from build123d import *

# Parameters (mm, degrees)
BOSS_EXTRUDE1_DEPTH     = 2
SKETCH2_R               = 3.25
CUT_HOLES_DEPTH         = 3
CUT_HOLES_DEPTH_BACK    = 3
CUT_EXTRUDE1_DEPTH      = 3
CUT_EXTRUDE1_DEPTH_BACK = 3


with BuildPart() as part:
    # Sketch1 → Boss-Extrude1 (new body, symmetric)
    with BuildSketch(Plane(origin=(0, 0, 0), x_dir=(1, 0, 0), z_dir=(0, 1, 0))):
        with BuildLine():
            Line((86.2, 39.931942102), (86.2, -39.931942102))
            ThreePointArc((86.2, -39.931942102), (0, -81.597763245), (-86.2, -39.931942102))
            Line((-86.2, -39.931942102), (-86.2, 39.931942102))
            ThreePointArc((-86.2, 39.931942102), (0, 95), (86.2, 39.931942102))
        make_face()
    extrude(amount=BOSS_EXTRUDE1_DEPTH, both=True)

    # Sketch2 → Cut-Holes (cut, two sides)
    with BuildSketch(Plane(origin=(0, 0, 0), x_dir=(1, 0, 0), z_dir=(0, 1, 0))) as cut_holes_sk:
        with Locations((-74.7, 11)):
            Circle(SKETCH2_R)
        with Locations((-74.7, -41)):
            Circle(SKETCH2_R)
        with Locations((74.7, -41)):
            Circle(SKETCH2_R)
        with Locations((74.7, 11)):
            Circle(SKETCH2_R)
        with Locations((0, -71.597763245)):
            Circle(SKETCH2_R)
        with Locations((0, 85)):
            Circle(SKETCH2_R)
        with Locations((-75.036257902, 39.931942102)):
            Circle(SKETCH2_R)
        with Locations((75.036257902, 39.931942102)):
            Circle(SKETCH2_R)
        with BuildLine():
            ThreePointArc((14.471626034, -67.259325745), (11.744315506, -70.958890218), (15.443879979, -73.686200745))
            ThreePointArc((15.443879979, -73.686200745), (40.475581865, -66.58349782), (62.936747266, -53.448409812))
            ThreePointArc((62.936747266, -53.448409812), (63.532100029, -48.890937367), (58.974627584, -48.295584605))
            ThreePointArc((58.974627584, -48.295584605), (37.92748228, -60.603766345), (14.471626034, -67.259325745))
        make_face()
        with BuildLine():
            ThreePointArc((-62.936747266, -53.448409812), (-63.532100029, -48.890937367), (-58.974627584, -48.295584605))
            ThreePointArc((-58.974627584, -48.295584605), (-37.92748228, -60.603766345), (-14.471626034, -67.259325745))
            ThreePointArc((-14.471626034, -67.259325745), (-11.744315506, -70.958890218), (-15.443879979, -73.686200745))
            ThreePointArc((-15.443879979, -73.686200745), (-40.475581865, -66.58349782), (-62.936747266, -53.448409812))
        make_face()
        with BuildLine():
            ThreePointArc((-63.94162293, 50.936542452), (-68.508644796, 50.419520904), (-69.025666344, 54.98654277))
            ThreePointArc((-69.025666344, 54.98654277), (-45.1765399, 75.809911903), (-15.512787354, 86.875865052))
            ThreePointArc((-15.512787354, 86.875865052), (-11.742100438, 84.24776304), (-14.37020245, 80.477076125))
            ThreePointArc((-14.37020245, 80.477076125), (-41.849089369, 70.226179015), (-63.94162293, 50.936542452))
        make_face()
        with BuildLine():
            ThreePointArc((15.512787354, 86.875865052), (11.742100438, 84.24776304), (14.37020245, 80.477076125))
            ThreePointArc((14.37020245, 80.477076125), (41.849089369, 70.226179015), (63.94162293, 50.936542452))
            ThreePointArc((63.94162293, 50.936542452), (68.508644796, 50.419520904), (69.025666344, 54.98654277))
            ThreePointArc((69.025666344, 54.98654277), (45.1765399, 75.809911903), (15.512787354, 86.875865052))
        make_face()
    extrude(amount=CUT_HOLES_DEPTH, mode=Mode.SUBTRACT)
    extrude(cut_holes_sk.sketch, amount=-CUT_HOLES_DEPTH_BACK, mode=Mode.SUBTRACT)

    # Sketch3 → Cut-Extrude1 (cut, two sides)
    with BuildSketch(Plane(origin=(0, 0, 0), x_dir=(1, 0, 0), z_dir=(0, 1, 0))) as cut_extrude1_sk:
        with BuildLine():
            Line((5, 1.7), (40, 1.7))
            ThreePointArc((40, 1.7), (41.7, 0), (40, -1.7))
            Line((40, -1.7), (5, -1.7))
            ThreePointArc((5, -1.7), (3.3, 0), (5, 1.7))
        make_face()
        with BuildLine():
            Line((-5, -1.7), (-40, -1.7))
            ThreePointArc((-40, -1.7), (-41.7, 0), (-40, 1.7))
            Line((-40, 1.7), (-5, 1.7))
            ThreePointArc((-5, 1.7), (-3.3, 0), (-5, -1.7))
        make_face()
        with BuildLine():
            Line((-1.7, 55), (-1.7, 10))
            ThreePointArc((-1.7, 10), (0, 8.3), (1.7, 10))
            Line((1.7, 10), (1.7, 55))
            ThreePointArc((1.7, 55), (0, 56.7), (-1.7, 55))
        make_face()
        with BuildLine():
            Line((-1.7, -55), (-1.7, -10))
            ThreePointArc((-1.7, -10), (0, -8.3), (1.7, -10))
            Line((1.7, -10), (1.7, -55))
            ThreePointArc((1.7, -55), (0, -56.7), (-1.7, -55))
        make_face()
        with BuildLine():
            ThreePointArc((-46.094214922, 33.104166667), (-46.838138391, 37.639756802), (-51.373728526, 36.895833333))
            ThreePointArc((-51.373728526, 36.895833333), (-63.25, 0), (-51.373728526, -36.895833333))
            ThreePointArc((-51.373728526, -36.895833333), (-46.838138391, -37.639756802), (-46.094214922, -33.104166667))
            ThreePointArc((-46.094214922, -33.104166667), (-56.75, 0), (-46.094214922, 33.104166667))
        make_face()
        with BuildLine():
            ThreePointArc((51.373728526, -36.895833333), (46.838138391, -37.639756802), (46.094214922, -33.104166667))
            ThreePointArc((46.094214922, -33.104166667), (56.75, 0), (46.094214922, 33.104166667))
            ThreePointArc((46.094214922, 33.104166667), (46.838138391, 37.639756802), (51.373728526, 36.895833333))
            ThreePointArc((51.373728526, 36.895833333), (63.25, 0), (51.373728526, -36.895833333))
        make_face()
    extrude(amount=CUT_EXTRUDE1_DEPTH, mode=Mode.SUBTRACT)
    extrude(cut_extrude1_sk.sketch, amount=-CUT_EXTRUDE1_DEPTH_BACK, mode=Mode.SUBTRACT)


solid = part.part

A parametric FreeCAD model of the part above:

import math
import FreeCAD as App
import Part
import Sketcher
from FreeCAD import Vector
Q = App.Units.Quantity

doc = App.newDocument("Part")
body = doc.addObject("PartDesign::Body", "Body")

# Sketch on XZ plane
sketch1 = body.newObject("Sketcher::SketchObject", "Sketch")
sketch1.AttachmentSupport = (doc.getObject("XZ_Plane"), [""])
sketch1.MapMode = "FlatFace"
sketch1.addGeometry(Part.LineSegment(Vector(86, 40, 0), Vector(86, -40, 0)), False)
sketch1.addGeometry(Part.ArcOfCircle(Part.Circle(Vector(0, 0, 0), Vector(0, 0, 1), 95), math.radians(-155), math.radians(-25)), False)
sketch1.addGeometry(Part.LineSegment(Vector(-86, -40, 0), Vector(-86, 40, 0)), False)
sketch1.addGeometry(Part.ArcOfCircle(Part.Circle(Vector(0, -28, 0), Vector(0, 0, 1), 110), math.radians(38), math.radians(142)), False)
sketch1.addConstraint(Sketcher.Constraint("Coincident", 0, 2, 1, 2))
sketch1.addConstraint(Sketcher.Constraint("Coincident", 1, 1, 2, 1))
sketch1.addConstraint(Sketcher.Constraint("Coincident", 2, 2, 3, 2))
sketch1.addConstraint(Sketcher.Constraint("Coincident", 3, 1, 0, 1))
sketch1.addConstraint(Sketcher.Constraint("Vertical", 0))
sketch1.addConstraint(Sketcher.Constraint("Vertical", 2))
sketch1.addConstraint(Sketcher.Constraint("Coincident", 1, 3, -1, 1))
sketch1.addConstraint(Sketcher.Constraint("Symmetric", 0, 2, 2, 2, -1, 1))
sketch1.addConstraint(Sketcher.Constraint("PointOnObject", 3, 3, -2))
sketch1.addConstraint(Sketcher.Constraint("Radius", 1, Q("95 mm")))
sketch1.addConstraint(Sketcher.Constraint("Radius", 3, Q("110 mm")))
sketch1.addConstraint(Sketcher.Constraint("DistanceX", -1, 1, 0, 2, Q("86.2 mm")))
pad1 = body.newObject("PartDesign::Pad", "Pad")
pad1.Profile = sketch1
pad1.Length = 4
pad1.Midplane = True

# Sketch on XZ plane
sketch2 = body.newObject("Sketcher::SketchObject", "Sketch001")
sketch2.AttachmentSupport = (doc.getObject("XZ_Plane"), [""])
sketch2.MapMode = "FlatFace"
sketch2.addGeometry(Part.Circle(Vector(-74.7, -11, 0), Vector(0, 0, 1), 3.2), False)
sketch2.addGeometry(Part.Circle(Vector(-74.7, 41, 0), Vector(0, 0, 1), 3.2), False)
sketch2.addGeometry(Part.Circle(Vector(74.7, 41, 0), Vector(0, 0, 1), 3.2), False)
sketch2.addGeometry(Part.Circle(Vector(74.7, -11, 0), Vector(0, 0, 1), 3.2), False)
sketch2.addGeometry(Part.Circle(Vector(0, 71.6, 0), Vector(0, 0, 1), 3.2), False)
sketch2.addGeometry(Part.Circle(Vector(0, -85, 0), Vector(0, 0, 1), 3.2), False)
sketch2.addGeometry(Part.Circle(Vector(-75, -39.9, 0), Vector(0, 0, 1), 3.2), False)
sketch2.addGeometry(Part.Circle(Vector(75, -39.9, 0), Vector(0, 0, 1), 3.2), False)
sketch2.addGeometry(Part.ArcOfCircle(Part.Circle(Vector(15, 70.5, 0), Vector(0, 0, 1), 3.2), math.radians(81), math.radians(261)), False)
sketch2.addGeometry(Part.ArcOfCircle(Part.Circle(Vector(0, -28.4, 0), Vector(0, 0, 1), 103.2), math.radians(52), math.radians(81)), False)
sketch2.addGeometry(Part.ArcOfCircle(Part.Circle(Vector(61, 50.9, 0), Vector(0, 0, 1), 3.2), math.radians(-128), math.radians(52)), False)
sketch2.addGeometry(Part.ArcOfCircle(Part.Circle(Vector(0, -28.4, 0), Vector(0, 0, 1), 96.8), math.radians(52), math.radians(81)), False)
sketch2.addGeometry(Part.ArcOfCircle(Part.Circle(Vector(-61, 50.9, 0), Vector(0, 0, 1), 3.2), math.radians(128), math.radians(308)), False)
sketch2.addGeometry(Part.ArcOfCircle(Part.Circle(Vector(0, -28.4, 0), Vector(0, 0, 1), 103.2), math.radians(99), math.radians(128)), False)
sketch2.addGeometry(Part.ArcOfCircle(Part.Circle(Vector(-15, 70.5, 0), Vector(0, 0, 1), 3.2), math.radians(-81), math.radians(99)), False)
sketch2.addGeometry(Part.ArcOfCircle(Part.Circle(Vector(0, -28.4, 0), Vector(0, 0, 1), 96.8), math.radians(99), math.radians(128)), False)
sketch2.addGeometry(Part.ArcOfCircle(Part.Circle(Vector(-66.5, -53, 0), Vector(0, 0, 1), 3.2), math.radians(39), math.radians(219)), False)
sketch2.addGeometry(Part.ArcOfCircle(Part.Circle(Vector(0, 0, 0), Vector(0, 0, 1), 81.7), math.radians(-141), math.radians(-100)), False)
sketch2.addGeometry(Part.ArcOfCircle(Part.Circle(Vector(-14.9, -83.7, 0), Vector(0, 0, 1), 3.2), math.radians(-100), math.radians(80)), False)
sketch2.addGeometry(Part.ArcOfCircle(Part.Circle(Vector(0, 0, 0), Vector(0, 0, 1), 88.2), math.radians(-141), math.radians(-100)), False)
sketch2.addGeometry(Part.ArcOfCircle(Part.Circle(Vector(14.9, -83.7, 0), Vector(0, 0, 1), 3.2), math.radians(100), math.radians(280)), False)
sketch2.addGeometry(Part.ArcOfCircle(Part.Circle(Vector(0, 0, 0), Vector(0, 0, 1), 81.7), math.radians(-80), math.radians(-39)), False)
sketch2.addGeometry(Part.ArcOfCircle(Part.Circle(Vector(66.5, -53, 0), Vector(0, 0, 1), 3.2), math.radians(-39), math.radians(141)), False)
sketch2.addGeometry(Part.ArcOfCircle(Part.Circle(Vector(0, 0, 0), Vector(0, 0, 1), 88.2), math.radians(-80), math.radians(-39)), False)
sketch2.addConstraint(Sketcher.Constraint("Tangent", 8, 1, 9, 2))
sketch2.addConstraint(Sketcher.Constraint("Tangent", 9, 1, 10, 2))
sketch2.addConstraint(Sketcher.Constraint("Tangent", 10, 1, 11, 1))
sketch2.addConstraint(Sketcher.Constraint("Tangent", 11, 2, 8, 2))
sketch2.addConstraint(Sketcher.Constraint("Tangent", 12, 1, 13, 2))
sketch2.addConstraint(Sketcher.Constraint("Tangent", 13, 1, 14, 2))
sketch2.addConstraint(Sketcher.Constraint("Tangent", 14, 1, 15, 1))
sketch2.addConstraint(Sketcher.Constraint("Tangent", 15, 2, 12, 2))
sketch2.addConstraint(Sketcher.Constraint("Tangent", 16, 1, 17, 1))
sketch2.addConstraint(Sketcher.Constraint("Tangent", 17, 2, 18, 2))
sketch2.addConstraint(Sketcher.Constraint("Tangent", 18, 1, 19, 2))
sketch2.addConstraint(Sketcher.Constraint("Tangent", 19, 1, 16, 2))
sketch2.addConstraint(Sketcher.Constraint("Tangent", 20, 1, 21, 1))
sketch2.addConstraint(Sketcher.Constraint("Tangent", 21, 2, 22, 2))
sketch2.addConstraint(Sketcher.Constraint("Tangent", 22, 1, 23, 2))
sketch2.addConstraint(Sketcher.Constraint("Tangent", 23, 1, 20, 2))
sketch2.addConstraint(Sketcher.Constraint("Coincident", 17, 3, -1, 1))
sketch2.addConstraint(Sketcher.Constraint("Coincident", 19, 3, -1, 1))
sketch2.addConstraint(Sketcher.Constraint("Coincident", 21, 3, -1, 1))
sketch2.addConstraint(Sketcher.Constraint("Coincident", 23, 3, -1, 1))
sketch2.addConstraint(Sketcher.Constraint("Coincident", 11, 3, 9, 3))
sketch2.addConstraint(Sketcher.Constraint("Coincident", 13, 3, 9, 3))
sketch2.addConstraint(Sketcher.Constraint("Coincident", 15, 3, 9, 3))
sketch2.addConstraint(Sketcher.Constraint("Equal", 0, 1))
sketch2.addConstraint(Sketcher.Constraint("Equal", 1, 2))
sketch2.addConstraint(Sketcher.Constraint("Equal", 2, 3))
sketch2.addConstraint(Sketcher.Constraint("Equal", 3, 4))
sketch2.addConstraint(Sketcher.Constraint("Equal", 4, 5))
sketch2.addConstraint(Sketcher.Constraint("Equal", 5, 6))
sketch2.addConstraint(Sketcher.Constraint("Equal", 6, 7))
sketch2.addConstraint(Sketcher.Constraint("Equal", 7, 8))
sketch2.addConstraint(Sketcher.Constraint("Equal", 10, 12))
sketch2.addConstraint(Sketcher.Constraint("Equal", 9, 13))
sketch2.addConstraint(Sketcher.Constraint("Equal", 14, 16))
sketch2.addConstraint(Sketcher.Constraint("Equal", 18, 20))
sketch2.addConstraint(Sketcher.Constraint("Equal", 17, 21))
sketch2.addConstraint(Sketcher.Constraint("Symmetric", 1, 3, 2, 3, -2))
sketch2.addConstraint(Sketcher.Constraint("Symmetric", 0, 3, 3, 3, -2))
sketch2.addConstraint(Sketcher.Constraint("Symmetric", 6, 3, 7, 3, -2))
sketch2.addConstraint(Sketcher.Constraint("Symmetric", 10, 3, 12, 3, -2))
sketch2.addConstraint(Sketcher.Constraint("PointOnObject", 4, 3, -2))
sketch2.addConstraint(Sketcher.Constraint("PointOnObject", 5, 3, -2))
sketch2.addConstraint(Sketcher.Constraint("Horizontal", 8, 3, 14, 3))
sketch2.addConstraint(Sketcher.Constraint("Horizontal", 18, 3, 20, 3))
sketch2.addConstraint(Sketcher.Constraint("Horizontal", 16, 3, 22, 3))
sketch2.addConstraint(Sketcher.Constraint("Vertical", 0, 3, 1, 3))
sketch2.addConstraint(Sketcher.Constraint("Diameter", 0, Q("6.5 mm")))
sketch2.addConstraint(Sketcher.Constraint("Radius", 9, Q("103.25 mm")))
sketch2.addConstraint(Sketcher.Constraint("Radius", 17, Q("81.75 mm")))
sketch2.addConstraint(Sketcher.Constraint("DistanceY", 0, 3, -1, 1, Q("11 mm")))
sketch2.addConstraint(Sketcher.Constraint("DistanceY", -1, 1, 1, 3, Q("41 mm")))
sketch2.addConstraint(Sketcher.Constraint("DistanceY", 5, 3, -1, 1, Q("85 mm")))
sketch2.addConstraint(Sketcher.Constraint("DistanceX", 0, 3, -1, 1, Q("74.7 mm")))
sketch2.addConstraint(Sketcher.Constraint("DistanceY", 8, 3, 4, 3, Q("1.125 mm")))
sketch2.addConstraint(Sketcher.Constraint("DistanceX", 11, 2, 10, 1, Q("44.503002 mm")))
sketch2.addConstraint(Sketcher.Constraint("DistanceY", 16, 3, 16, 1, Q("2.025 mm")))
sketch2.addConstraint(Sketcher.Constraint("DistanceY", -1, 1, 8, 1, Q("73.686201 mm")))
sketch2.addConstraint(Sketcher.Constraint("DistanceY", 16, 3, 6, 3, Q("13.029601 mm")))
sketch2.addConstraint(Sketcher.Constraint("DistanceY", 18, 3, -1, 1, Q("83.676471 mm")))
sketch2.addConstraint(Sketcher.Constraint("DistanceX", -1, 1, 8, 1, Q("15.44388 mm")))
sketch2.addConstraint(Sketcher.Constraint("DistanceX", 10, 3, 7, 3, Q("14.08057 mm")))
pocket1 = body.newObject("PartDesign::Pocket", "Pocket")
pocket1.Profile = sketch2
pocket1.Type = "ThroughAll"
pocket1.Midplane = True

# Sketch on XZ plane
sketch3 = body.newObject("Sketcher::SketchObject", "Sketch002")
sketch3.AttachmentSupport = (doc.getObject("XZ_Plane"), [""])
sketch3.MapMode = "FlatFace"
sketch3.addGeometry(Part.LineSegment(Vector(40, -1.7, 0), Vector(5, -1.7, 0)), False)
sketch3.addGeometry(Part.ArcOfCircle(Part.Circle(Vector(5, 0, 0), Vector(0, 0, 1), 1.7), math.radians(90), math.radians(270)), False)
sketch3.addGeometry(Part.LineSegment(Vector(5, 1.7, 0), Vector(40, 1.7, 0)), False)
sketch3.addGeometry(Part.ArcOfCircle(Part.Circle(Vector(40, 0, 0), Vector(0, 0, 1), 1.7), math.radians(-90), math.radians(90)), False)
sketch3.addGeometry(Part.LineSegment(Vector(-40, 1.7, 0), Vector(-5, 1.7, 0)), False)
sketch3.addGeometry(Part.ArcOfCircle(Part.Circle(Vector(-5, 0, 0), Vector(0, 0, 1), 1.7), math.radians(-90), math.radians(90)), False)
sketch3.addGeometry(Part.LineSegment(Vector(-5, -1.7, 0), Vector(-40, -1.7, 0)), False)
sketch3.addGeometry(Part.ArcOfCircle(Part.Circle(Vector(-40, 0, 0), Vector(0, 0, 1), 1.7), math.radians(90), math.radians(270)), False)
sketch3.addGeometry(Part.LineSegment(Vector(-1.7, -55, 0), Vector(-1.7, -10, 0)), False)
sketch3.addGeometry(Part.ArcOfCircle(Part.Circle(Vector(0, -10, 0), Vector(0, 0, 1), 1.7), math.radians(0), math.radians(180)), False)
sketch3.addGeometry(Part.LineSegment(Vector(1.7, -10, 0), Vector(1.7, -55, 0)), False)
sketch3.addGeometry(Part.ArcOfCircle(Part.Circle(Vector(0, -55, 0), Vector(0, 0, 1), 1.7), math.radians(180), math.radians(360)), False)
sketch3.addGeometry(Part.LineSegment(Vector(-1.7, 10, 0), Vector(-1.7, 55, 0)), False)
sketch3.addGeometry(Part.ArcOfCircle(Part.Circle(Vector(0, 55, 0), Vector(0, 0, 1), 1.7), math.radians(0), math.radians(180)), False)
sketch3.addGeometry(Part.LineSegment(Vector(1.7, 55, 0), Vector(1.7, 10, 0)), False)
sketch3.addGeometry(Part.ArcOfCircle(Part.Circle(Vector(0, 10, 0), Vector(0, 0, 1), 1.7), math.radians(180), math.radians(360)), False)
sketch3.addGeometry(Part.ArcOfCircle(Part.Circle(Vector(-48.7, -35, 0), Vector(0, 0, 1), 3.2), math.radians(-144), math.radians(36)), False)
sketch3.addGeometry(Part.ArcOfCircle(Part.Circle(Vector(0, 0, 0), Vector(0, 0, 1), 63.2), math.radians(144), math.radians(216)), False)
sketch3.addGeometry(Part.ArcOfCircle(Part.Circle(Vector(-48.7, 35, 0), Vector(0, 0, 1), 3.2), math.radians(-36), math.radians(144)), False)
sketch3.addGeometry(Part.ArcOfCircle(Part.Circle(Vector(0, 0, 0), Vector(0, 0, 1), 56.8), math.radians(144), math.radians(216)), False)
sketch3.addGeometry(Part.ArcOfCircle(Part.Circle(Vector(48.7, 35, 0), Vector(0, 0, 1), 3.2), math.radians(36), math.radians(216)), False)
sketch3.addGeometry(Part.ArcOfCircle(Part.Circle(Vector(0, 0, 0), Vector(0, 0, 1), 63.2), math.radians(-36), math.radians(36)), False)
sketch3.addGeometry(Part.ArcOfCircle(Part.Circle(Vector(48.7, -35, 0), Vector(0, 0, 1), 3.2), math.radians(144), math.radians(324)), False)
sketch3.addGeometry(Part.ArcOfCircle(Part.Circle(Vector(0, 0, 0), Vector(0, 0, 1), 56.8), math.radians(-36), math.radians(36)), False)
sketch3.addConstraint(Sketcher.Constraint("Tangent", 0, 2, 1, 2))
sketch3.addConstraint(Sketcher.Constraint("Tangent", 1, 1, 2, 1))
sketch3.addConstraint(Sketcher.Constraint("Tangent", 2, 2, 3, 2))
sketch3.addConstraint(Sketcher.Constraint("Tangent", 3, 1, 0, 1))
sketch3.addConstraint(Sketcher.Constraint("Tangent", 4, 2, 5, 2))
sketch3.addConstraint(Sketcher.Constraint("Tangent", 5, 1, 6, 1))
sketch3.addConstraint(Sketcher.Constraint("Tangent", 6, 2, 7, 2))
sketch3.addConstraint(Sketcher.Constraint("Tangent", 7, 1, 4, 1))
sketch3.addConstraint(Sketcher.Constraint("Tangent", 8, 2, 9, 2))
sketch3.addConstraint(Sketcher.Constraint("Tangent", 9, 1, 10, 1))
sketch3.addConstraint(Sketcher.Constraint("Tangent", 10, 2, 11, 2))
sketch3.addConstraint(Sketcher.Constraint("Tangent", 11, 1, 8, 1))
sketch3.addConstraint(Sketcher.Constraint("Tangent", 12, 2, 13, 2))
sketch3.addConstraint(Sketcher.Constraint("Tangent", 13, 1, 14, 1))
sketch3.addConstraint(Sketcher.Constraint("Tangent", 14, 2, 15, 2))
sketch3.addConstraint(Sketcher.Constraint("Tangent", 15, 1, 12, 1))
sketch3.addConstraint(Sketcher.Constraint("Tangent", 16, 1, 17, 2))
sketch3.addConstraint(Sketcher.Constraint("Tangent", 17, 1, 18, 2))
sketch3.addConstraint(Sketcher.Constraint("Tangent", 18, 1, 19, 1))
sketch3.addConstraint(Sketcher.Constraint("Tangent", 19, 2, 16, 2))
sketch3.addConstraint(Sketcher.Constraint("Tangent", 20, 1, 21, 2))
sketch3.addConstraint(Sketcher.Constraint("Tangent", 21, 1, 22, 2))
sketch3.addConstraint(Sketcher.Constraint("Tangent", 22, 1, 23, 1))
sketch3.addConstraint(Sketcher.Constraint("Tangent", 23, 2, 20, 2))
sketch3.addConstraint(Sketcher.Constraint("Horizontal", 0))
sketch3.addConstraint(Sketcher.Constraint("Horizontal", 2))
sketch3.addConstraint(Sketcher.Constraint("Horizontal", 4))
sketch3.addConstraint(Sketcher.Constraint("Horizontal", 6))
sketch3.addConstraint(Sketcher.Constraint("Vertical", 8))
sketch3.addConstraint(Sketcher.Constraint("Vertical", 10))
sketch3.addConstraint(Sketcher.Constraint("Vertical", 12))
sketch3.addConstraint(Sketcher.Constraint("Vertical", 14))
sketch3.addConstraint(Sketcher.Constraint("Coincident", 17, 3, -1, 1))
sketch3.addConstraint(Sketcher.Constraint("Coincident", 19, 3, -1, 1))
sketch3.addConstraint(Sketcher.Constraint("Coincident", 21, 3, -1, 1))
sketch3.addConstraint(Sketcher.Constraint("Coincident", 23, 3, -1, 1))
sketch3.addConstraint(Sketcher.Constraint("Equal", 3, 5))
sketch3.addConstraint(Sketcher.Constraint("Equal", 7, 9))
sketch3.addConstraint(Sketcher.Constraint("Equal", 11, 13))
sketch3.addConstraint(Sketcher.Constraint("Equal", 18, 20))
sketch3.addConstraint(Sketcher.Constraint("Equal", 17, 21))
sketch3.addConstraint(Sketcher.Constraint("Symmetric", 1, 3, 5, 3, -1, 1))
sketch3.addConstraint(Sketcher.Constraint("Symmetric", 11, 3, 13, 3, -1, 1))
sketch3.addConstraint(Sketcher.Constraint("Symmetric", 3, 3, 7, 3, -2))
sketch3.addConstraint(Sketcher.Constraint("Symmetric", 9, 3, 15, 3, -1))
sketch3.addConstraint(Sketcher.Constraint("Horizontal", 18, 3, 20, 3))
sketch3.addConstraint(Sketcher.Constraint("Horizontal", 16, 3, 22, 3))
sketch3.addConstraint(Sketcher.Constraint("Vertical", 16, 3, 18, 3))
sketch3.addConstraint(Sketcher.Constraint("Radius", 1, Q("1.7 mm")))
sketch3.addConstraint(Sketcher.Constraint("DistanceX", 0, 2, 0, 1, Q("35 mm")))
sketch3.addConstraint(Sketcher.Constraint("DistanceY", 8, 1, 8, 2, Q("45 mm")))
sketch3.addConstraint(Sketcher.Constraint("Radius", 16, Q("3.25 mm")))
sketch3.addConstraint(Sketcher.Constraint("Radius", 17, Q("63.25 mm")))
sketch3.addConstraint(Sketcher.Constraint("DistanceX", -1, 1, 1, 3, Q("5 mm")))
sketch3.addConstraint(Sketcher.Constraint("DistanceY", 9, 3, -1, 1, Q("10 mm")))
sketch3.addConstraint(Sketcher.Constraint("DistanceY", 16, 3, -1, 1, Q("35 mm")))
pocket2 = body.newObject("PartDesign::Pocket", "Pocket001")
pocket2.Profile = sketch3
pocket2.Type = "ThroughAll"
pocket2.Midplane = True

doc.recompute()
